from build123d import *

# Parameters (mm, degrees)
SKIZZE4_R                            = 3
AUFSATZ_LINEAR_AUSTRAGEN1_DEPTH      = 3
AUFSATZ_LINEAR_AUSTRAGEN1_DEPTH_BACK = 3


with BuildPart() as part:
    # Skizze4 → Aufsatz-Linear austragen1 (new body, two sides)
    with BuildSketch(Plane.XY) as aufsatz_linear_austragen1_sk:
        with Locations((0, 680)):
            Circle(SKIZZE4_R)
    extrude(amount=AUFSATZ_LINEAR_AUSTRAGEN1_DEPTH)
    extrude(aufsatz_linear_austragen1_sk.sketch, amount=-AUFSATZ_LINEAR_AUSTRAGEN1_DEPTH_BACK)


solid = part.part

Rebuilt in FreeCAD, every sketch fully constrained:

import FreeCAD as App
import Part
import Sketcher
from FreeCAD import Vector

doc = App.newDocument("Part")
params = doc.addObject("Spreadsheet::Sheet", "Params")
for row, (alias, value) in enumerate([
    ("sketch1_diameter", "6 mm"),
    ("pad1_length", "3 mm"),
    ("pad1_length2", "3 mm"),
], start=1):
    params.set(f"A{row}", alias)
    params.set(f"B{row}", "=" + value)
    params.setAlias(f"B{row}", alias)

body = doc.addObject("PartDesign::Body", "Body")

# Sketch on XY plane
sketch1 = body.newObject("Sketcher::SketchObject", "Sketch")
sketch1.AttachmentSupport = (doc.getObject("XY_Plane"), [""])
sketch1.MapMode = "FlatFace"
sketch1.addGeometry(Part.Circle(Vector(0, 680, 0), Vector(0, 0, 1), 3), False)
sketch1.addConstraint([
    Sketcher.Constraint("PointOnObject", 0, 3, -2),
    Sketcher.Constraint("Diameter", 0, 6.0),
    Sketcher.Constraint("DistanceY", -1, 1, 0, 3, 680.0),
])
sketch1.setExpression("Constraints[1]", "Params.sketch1_diameter")
pad1 = body.newObject("PartDesign::Pad", "Pad")
pad1.Profile = sketch1
pad1.Type = "TwoLengths"
pad1.setExpression("Length", "Params.pad1_length")
pad1.setExpression("Length2", "Params.pad1_length2")

doc.recompute()
